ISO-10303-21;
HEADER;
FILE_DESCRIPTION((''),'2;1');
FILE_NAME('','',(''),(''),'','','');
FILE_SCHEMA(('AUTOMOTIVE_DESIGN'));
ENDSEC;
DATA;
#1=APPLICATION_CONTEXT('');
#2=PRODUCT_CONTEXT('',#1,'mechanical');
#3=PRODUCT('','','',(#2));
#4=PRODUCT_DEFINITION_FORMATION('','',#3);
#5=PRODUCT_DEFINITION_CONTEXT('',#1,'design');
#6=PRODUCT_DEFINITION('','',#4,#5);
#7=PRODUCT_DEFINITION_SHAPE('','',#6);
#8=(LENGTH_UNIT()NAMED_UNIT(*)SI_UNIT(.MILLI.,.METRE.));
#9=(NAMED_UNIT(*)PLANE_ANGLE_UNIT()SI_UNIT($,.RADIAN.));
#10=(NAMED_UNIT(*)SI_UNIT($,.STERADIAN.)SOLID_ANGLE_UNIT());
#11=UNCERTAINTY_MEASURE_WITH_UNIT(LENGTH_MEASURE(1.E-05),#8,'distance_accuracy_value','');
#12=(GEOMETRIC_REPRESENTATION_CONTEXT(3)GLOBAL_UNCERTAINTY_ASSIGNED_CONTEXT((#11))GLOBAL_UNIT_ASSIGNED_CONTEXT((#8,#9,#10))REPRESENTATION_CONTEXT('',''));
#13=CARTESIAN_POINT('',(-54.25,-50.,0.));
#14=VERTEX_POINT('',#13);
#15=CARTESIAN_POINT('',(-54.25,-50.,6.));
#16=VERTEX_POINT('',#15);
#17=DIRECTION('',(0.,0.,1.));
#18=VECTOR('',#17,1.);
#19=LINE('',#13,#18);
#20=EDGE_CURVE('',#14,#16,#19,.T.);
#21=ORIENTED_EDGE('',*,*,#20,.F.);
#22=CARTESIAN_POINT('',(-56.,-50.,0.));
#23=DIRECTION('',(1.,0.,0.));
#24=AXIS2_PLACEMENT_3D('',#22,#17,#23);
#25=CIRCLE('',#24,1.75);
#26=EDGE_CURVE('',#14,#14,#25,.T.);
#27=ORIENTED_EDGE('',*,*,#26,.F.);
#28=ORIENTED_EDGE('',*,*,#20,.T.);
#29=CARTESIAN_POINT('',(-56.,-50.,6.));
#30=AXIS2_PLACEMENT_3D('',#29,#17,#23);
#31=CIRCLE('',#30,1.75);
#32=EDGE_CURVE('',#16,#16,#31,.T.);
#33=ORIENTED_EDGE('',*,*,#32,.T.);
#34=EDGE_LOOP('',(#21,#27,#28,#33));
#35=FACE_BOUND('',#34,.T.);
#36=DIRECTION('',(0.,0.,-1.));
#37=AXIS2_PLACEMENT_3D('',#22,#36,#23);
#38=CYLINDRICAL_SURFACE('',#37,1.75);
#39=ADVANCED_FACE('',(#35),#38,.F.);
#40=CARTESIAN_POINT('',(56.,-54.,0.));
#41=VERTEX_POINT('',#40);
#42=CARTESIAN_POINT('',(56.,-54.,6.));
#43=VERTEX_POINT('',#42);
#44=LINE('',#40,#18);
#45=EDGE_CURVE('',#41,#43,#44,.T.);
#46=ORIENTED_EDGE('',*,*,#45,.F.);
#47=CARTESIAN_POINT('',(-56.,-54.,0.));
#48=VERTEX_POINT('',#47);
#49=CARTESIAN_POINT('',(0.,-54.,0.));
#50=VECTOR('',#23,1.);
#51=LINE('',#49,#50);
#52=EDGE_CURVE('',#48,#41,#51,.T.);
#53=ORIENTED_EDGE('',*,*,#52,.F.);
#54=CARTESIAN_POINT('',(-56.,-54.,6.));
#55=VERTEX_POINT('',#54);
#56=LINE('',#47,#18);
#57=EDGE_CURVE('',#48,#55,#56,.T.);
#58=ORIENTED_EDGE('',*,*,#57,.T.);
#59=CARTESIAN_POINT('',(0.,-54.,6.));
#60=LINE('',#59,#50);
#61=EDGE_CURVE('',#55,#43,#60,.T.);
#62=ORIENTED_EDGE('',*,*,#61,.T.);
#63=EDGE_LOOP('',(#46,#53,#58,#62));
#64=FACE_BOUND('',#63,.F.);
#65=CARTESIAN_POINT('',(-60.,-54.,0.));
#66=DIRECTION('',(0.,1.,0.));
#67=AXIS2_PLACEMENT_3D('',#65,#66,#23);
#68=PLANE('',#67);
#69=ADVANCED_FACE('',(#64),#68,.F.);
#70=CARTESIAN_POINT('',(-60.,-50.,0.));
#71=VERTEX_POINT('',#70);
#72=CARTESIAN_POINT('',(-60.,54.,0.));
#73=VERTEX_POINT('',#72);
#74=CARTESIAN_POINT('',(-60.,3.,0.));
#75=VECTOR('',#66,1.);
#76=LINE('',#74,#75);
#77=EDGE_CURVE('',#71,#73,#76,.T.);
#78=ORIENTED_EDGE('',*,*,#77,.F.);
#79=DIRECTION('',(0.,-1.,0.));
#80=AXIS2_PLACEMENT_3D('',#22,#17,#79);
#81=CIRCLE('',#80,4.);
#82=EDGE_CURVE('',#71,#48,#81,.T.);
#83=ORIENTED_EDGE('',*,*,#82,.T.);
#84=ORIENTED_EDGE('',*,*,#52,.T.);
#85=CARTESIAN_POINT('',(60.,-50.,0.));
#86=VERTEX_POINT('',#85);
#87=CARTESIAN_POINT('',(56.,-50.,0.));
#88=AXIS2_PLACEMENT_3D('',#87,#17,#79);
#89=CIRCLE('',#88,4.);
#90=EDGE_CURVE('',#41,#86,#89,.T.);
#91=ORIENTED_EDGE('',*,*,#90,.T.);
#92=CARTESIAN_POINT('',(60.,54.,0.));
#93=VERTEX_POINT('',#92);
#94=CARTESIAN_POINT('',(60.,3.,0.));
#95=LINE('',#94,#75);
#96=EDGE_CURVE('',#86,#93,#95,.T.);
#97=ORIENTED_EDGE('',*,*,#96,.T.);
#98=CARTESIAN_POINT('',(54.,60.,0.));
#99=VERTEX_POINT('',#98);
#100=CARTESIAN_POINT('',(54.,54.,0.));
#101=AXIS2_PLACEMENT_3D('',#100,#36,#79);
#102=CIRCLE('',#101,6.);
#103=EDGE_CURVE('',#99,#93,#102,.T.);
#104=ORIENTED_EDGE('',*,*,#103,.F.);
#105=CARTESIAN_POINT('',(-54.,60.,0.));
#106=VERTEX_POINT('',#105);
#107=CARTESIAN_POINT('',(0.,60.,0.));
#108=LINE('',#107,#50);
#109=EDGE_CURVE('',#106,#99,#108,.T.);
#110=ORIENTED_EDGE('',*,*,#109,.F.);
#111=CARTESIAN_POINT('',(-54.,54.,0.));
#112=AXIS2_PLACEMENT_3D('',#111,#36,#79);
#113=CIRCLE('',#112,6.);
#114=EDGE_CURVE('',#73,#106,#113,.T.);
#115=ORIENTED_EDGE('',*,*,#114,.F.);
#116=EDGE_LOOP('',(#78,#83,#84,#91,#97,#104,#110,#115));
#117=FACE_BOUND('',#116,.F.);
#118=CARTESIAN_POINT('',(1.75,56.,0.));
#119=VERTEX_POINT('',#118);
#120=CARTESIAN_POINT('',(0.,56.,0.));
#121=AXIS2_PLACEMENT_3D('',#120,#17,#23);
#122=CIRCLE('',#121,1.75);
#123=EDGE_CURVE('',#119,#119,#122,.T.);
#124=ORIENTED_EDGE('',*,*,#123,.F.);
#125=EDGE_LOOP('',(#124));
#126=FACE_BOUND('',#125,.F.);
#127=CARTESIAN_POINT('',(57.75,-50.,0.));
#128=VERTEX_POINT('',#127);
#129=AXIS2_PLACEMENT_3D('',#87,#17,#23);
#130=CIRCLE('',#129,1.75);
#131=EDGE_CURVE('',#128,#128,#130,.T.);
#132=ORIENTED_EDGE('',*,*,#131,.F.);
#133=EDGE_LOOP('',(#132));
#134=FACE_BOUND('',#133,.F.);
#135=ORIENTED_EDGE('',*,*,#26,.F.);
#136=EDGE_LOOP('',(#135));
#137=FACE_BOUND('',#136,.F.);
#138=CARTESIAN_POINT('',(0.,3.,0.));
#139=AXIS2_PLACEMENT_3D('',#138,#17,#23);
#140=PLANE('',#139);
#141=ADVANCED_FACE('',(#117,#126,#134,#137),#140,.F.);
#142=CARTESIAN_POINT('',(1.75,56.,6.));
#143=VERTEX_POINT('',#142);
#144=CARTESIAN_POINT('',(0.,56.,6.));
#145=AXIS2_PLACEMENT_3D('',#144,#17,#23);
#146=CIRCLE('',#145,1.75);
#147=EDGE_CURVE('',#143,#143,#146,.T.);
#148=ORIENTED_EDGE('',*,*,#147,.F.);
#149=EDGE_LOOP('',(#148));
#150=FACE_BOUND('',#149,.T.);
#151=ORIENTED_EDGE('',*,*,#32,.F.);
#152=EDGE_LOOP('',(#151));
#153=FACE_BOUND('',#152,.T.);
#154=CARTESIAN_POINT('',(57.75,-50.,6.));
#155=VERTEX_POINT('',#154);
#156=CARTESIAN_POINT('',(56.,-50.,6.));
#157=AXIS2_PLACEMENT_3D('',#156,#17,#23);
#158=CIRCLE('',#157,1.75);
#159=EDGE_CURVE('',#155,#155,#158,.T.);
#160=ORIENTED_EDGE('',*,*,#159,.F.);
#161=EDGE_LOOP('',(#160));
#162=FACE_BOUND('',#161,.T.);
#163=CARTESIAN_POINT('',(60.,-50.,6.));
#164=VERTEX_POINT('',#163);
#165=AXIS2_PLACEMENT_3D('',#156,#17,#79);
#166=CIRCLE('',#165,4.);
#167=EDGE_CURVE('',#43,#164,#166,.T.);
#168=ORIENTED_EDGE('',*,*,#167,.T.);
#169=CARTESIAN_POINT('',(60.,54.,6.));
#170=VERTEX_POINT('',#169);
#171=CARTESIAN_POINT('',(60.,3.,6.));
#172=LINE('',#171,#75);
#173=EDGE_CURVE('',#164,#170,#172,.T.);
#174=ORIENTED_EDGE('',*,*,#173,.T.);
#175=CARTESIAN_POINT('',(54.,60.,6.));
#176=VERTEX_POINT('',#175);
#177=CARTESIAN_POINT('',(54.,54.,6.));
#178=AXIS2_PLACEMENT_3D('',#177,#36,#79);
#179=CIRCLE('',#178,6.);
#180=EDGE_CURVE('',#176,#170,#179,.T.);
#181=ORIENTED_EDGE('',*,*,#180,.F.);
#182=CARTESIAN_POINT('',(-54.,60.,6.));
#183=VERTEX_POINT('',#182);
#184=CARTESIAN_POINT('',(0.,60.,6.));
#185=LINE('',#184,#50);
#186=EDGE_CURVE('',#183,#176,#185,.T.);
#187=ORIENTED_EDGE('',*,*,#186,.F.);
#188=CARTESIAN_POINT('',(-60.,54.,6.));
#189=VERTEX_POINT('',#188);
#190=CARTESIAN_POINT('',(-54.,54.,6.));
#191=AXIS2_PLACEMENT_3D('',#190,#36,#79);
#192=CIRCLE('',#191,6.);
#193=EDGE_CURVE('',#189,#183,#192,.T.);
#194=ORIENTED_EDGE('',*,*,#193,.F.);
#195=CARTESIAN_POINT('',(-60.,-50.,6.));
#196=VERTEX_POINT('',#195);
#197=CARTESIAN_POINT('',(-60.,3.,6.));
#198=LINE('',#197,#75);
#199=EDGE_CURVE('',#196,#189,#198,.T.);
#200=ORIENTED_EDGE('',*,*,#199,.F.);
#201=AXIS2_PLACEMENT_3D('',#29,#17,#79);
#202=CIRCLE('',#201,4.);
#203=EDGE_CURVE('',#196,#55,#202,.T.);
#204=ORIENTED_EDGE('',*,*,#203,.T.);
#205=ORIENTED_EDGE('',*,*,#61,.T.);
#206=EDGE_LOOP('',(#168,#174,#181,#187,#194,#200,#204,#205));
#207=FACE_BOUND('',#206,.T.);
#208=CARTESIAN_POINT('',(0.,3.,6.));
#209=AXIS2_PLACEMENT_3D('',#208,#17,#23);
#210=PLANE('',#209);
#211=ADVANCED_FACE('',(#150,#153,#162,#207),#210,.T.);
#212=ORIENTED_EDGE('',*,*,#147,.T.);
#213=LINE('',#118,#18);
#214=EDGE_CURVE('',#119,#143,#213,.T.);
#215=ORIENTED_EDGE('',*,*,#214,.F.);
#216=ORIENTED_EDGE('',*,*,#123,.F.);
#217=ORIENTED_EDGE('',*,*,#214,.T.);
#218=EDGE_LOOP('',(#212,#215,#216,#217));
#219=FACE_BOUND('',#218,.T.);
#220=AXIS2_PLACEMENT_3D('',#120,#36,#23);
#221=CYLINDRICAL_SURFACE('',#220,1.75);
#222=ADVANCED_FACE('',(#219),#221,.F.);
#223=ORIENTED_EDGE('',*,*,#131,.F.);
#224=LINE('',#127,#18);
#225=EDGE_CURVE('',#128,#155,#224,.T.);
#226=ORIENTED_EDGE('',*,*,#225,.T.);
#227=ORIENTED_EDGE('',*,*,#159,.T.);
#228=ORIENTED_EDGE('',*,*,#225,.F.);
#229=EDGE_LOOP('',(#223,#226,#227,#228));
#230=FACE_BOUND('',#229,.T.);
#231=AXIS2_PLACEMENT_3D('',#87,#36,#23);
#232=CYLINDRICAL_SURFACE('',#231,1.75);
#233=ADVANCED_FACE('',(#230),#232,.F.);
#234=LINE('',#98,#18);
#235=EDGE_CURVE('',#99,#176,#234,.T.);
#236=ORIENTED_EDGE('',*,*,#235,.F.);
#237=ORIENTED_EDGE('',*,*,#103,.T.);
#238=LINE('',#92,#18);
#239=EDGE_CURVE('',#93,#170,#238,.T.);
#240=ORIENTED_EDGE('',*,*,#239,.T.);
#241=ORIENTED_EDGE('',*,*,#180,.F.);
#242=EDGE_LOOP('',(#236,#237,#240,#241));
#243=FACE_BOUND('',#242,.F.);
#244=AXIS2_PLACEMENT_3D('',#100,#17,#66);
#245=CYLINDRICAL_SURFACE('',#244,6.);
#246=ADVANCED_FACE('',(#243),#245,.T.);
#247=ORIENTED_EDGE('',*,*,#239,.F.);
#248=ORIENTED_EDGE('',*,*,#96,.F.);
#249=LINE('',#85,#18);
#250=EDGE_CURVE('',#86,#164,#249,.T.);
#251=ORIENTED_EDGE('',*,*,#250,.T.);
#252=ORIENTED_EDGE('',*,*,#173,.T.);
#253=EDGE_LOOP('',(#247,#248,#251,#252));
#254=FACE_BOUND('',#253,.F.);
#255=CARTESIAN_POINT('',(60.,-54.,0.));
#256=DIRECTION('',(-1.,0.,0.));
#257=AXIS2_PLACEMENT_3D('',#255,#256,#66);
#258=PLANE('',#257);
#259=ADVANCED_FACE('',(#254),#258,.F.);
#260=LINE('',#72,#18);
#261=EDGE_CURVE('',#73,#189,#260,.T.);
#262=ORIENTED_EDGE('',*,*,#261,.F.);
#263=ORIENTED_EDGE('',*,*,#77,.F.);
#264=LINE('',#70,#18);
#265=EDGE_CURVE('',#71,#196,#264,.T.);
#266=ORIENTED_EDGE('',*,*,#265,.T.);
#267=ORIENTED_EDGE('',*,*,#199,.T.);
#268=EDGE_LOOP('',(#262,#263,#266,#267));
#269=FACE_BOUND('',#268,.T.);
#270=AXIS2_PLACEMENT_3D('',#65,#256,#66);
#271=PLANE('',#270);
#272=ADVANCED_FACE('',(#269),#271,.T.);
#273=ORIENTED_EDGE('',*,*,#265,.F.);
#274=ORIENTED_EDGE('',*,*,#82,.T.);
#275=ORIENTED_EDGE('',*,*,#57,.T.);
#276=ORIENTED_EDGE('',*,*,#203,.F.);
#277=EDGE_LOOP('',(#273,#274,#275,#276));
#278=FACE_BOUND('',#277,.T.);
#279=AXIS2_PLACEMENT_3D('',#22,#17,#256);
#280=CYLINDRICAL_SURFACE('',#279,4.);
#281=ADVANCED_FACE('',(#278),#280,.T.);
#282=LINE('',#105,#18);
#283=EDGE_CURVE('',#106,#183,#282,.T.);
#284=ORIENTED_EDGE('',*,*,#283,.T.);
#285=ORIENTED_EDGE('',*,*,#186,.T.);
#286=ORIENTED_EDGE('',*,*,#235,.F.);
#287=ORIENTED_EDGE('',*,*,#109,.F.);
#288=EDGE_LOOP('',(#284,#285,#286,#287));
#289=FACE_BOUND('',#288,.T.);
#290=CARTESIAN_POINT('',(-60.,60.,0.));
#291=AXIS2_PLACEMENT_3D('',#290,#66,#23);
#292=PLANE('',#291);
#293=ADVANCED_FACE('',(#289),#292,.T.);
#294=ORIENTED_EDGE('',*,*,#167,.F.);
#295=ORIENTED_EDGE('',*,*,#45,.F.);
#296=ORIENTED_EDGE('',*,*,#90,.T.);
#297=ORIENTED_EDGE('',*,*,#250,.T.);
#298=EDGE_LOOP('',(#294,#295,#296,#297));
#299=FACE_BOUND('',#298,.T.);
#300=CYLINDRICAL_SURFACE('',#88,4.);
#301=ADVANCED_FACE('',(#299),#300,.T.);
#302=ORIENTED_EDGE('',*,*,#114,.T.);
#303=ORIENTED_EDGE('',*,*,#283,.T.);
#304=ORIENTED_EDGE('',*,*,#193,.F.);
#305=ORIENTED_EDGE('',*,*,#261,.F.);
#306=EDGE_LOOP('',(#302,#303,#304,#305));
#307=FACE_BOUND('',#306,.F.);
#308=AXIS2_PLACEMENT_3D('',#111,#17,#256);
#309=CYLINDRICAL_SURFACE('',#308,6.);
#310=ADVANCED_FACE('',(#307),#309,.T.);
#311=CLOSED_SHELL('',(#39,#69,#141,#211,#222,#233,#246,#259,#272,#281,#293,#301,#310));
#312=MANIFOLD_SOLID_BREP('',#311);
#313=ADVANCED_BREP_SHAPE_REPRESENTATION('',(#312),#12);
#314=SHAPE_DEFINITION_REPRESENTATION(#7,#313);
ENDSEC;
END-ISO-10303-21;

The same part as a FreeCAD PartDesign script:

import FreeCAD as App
import Part
import Sketcher

V = App.Vector


def edges_at(feature, points):
    """Names of the edges that pass closest to the given points."""
    edges = feature.Shape.Edges
    near = lambda p: min(range(len(edges)), key=lambda i: edges[i].distToShape(Part.Vertex(*p))[0])
    return sorted({f"Edge{near(p) + 1}" for p in points})

doc = App.newDocument("Part")
body = doc.addObject("PartDesign::Body", "Body")

# Sketch on XY plane
sketch1 = doc.addObject("Sketcher::SketchObject", "Sketch")
body.addObject(sketch1)
sketch1.AttachmentSupport = (doc.XY_Plane, [""])
sketch1.MapMode = "FlatFace"
sketch1.addGeometry([
    Part.LineSegment(V(-60, 60, 0), V(-60, -54, 0)),  # 0
    Part.LineSegment(V(-60, -54, 0), V(60, -54, 0)),  # 1
    Part.LineSegment(V(60, -54, 0), V(60, 60, 0)),  # 2
    Part.LineSegment(V(60, 60, 0), V(-60, 60, 0)),  # 3
    Part.Circle(V(-56, -50, 0), V(0, 0, 1), 1.8),  # 4
    Part.Circle(V(56, -50, 0), V(0, 0, 1), 1.8),  # 5
    Part.Circle(V(0, 56, 0), V(0, 0, 1), 1.8),  # 6
], False)
sketch1.addConstraint([
    Sketcher.Constraint("Coincident", 0, 2, 1, 1),
    Sketcher.Constraint("Coincident", 1, 2, 2, 1),
    Sketcher.Constraint("Coincident", 2, 2, 3, 1),
    Sketcher.Constraint("Coincident", 3, 2, 0, 1),
    Sketcher.Constraint("Vertical", 0),
    Sketcher.Constraint("Horizontal", 1),
    Sketcher.Constraint("Vertical", 2),
    Sketcher.Constraint("Horizontal", 3),
    Sketcher.Constraint("Equal", 4, 5),
    Sketcher.Constraint("Equal", 5, 6),
    Sketcher.Constraint("Symmetric", 4, 3, 5, 3, -2),
    Sketcher.Constraint("PointOnObject", 6, 3, -2),
    Sketcher.Constraint("Diameter", 4, 3.5),
    Sketcher.Constraint("DistanceX", 1, 1, 1, 2, 120.0),
    Sketcher.Constraint("DistanceY", 0, 2, 0, 1, 114.0),
    Sketcher.Constraint("DistanceX", 4, 3, -1, 1, 56.0),
    Sketcher.Constraint("DistanceY", 4, 3, -1, 1, 50.0),
    Sketcher.Constraint("DistanceY", -1, 1, 6, 3, 56.0),
    Sketcher.Constraint("DistanceX", 0, 2, -1, 1, 60.0),
    Sketcher.Constraint("DistanceY", 0, 2, -1, 1, 54.0),
])
pad1 = doc.addObject("PartDesign::Pad", "Pad")
body.addObject(pad1)
pad1.Profile = sketch1
pad1.Length = 6
doc.recompute()

fillet = doc.addObject("PartDesign::Fillet", "Fillet")
body.addObject(fillet)
fillet.Base = (pad1, edges_at(pad1, [(-60, 60, 3), (60, 60, 3)]))
fillet.Radius = 6
doc.recompute()

fillet2 = doc.addObject("PartDesign::Fillet", "Fillet001")
body.addObject(fillet2)
fillet2.Base = (fillet, edges_at(fillet, [(-60, -54, 3), (60, -54, 3)]))
fillet2.Radius = 4

doc.recompute()
